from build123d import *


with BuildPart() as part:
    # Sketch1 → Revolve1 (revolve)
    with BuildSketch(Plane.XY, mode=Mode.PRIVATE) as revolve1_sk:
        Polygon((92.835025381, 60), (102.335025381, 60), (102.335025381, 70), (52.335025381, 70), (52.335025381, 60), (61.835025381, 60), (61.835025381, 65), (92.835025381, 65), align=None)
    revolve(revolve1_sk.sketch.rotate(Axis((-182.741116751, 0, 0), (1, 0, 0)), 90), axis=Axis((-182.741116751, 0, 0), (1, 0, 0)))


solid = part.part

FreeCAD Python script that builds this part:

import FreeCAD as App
import Part
import Sketcher
from FreeCAD import Vector
Q = App.Units.Quantity


def add_polygon(sketch, points):
    """Adds a closed chain of lines whose ends are joined by coincident constraints."""
    first, n = sketch.GeometryCount, len(points)
    for a, b in zip(points, points[1:] + points[:1]):
        sketch.addGeometry(Part.LineSegment(App.Vector(*a, 0), App.Vector(*b, 0)), False)
    for i in range(n):
        sketch.addConstraint(Sketcher.Constraint("Coincident", first + i, 2, first + (i + 1) % n, 1))

doc = App.newDocument("Part")
params = doc.addObject("Spreadsheet::Sheet", "Params")
for row, (alias, value) in enumerate([
    ("sketch1_width", "50 mm"),
    ("sketch1_width2", "31 mm"),
    ("sketch1_height", "10 mm"),
    ("sketch1_height2", "5 mm"),
    ("revolution_angle", "360 deg"),
], start=1):
    params.set(f"A{row}", alias)
    params.set(f"B{row}", "=" + value)
    params.setAlias(f"B{row}", alias)

body = doc.addObject("PartDesign::Body", "Body")

# Sketch on XY plane
sketch1 = doc.addObject("Sketcher::SketchObject", "Sketch")
body.addObject(sketch1)
sketch1.AttachmentSupport = (doc.XY_Plane, [""])
sketch1.MapMode = "FlatFace"
add_polygon(sketch1, [(93, 60), (102, 60), (102, 70), (52, 70), (52, 60), (62, 60), (62, 65), (93, 65)])  # lines 0-7
sketch1.addConstraint([
    Sketcher.Constraint("Horizontal", 0),
    Sketcher.Constraint("Vertical", 1),
    Sketcher.Constraint("Horizontal", 2),
    Sketcher.Constraint("Vertical", 3),
    Sketcher.Constraint("Horizontal", 4),
    Sketcher.Constraint("Vertical", 5),
    Sketcher.Constraint("Horizontal", 6),
    Sketcher.Constraint("Vertical", 7),
    Sketcher.Constraint("Horizontal", 0, 2, 3, 2),
    Sketcher.Constraint("Equal", 0, 4),
    Sketcher.Constraint("DistanceX", 2, 2, 2, 1, Q("50 mm")),
    Sketcher.Constraint("DistanceX", 6, 1, 6, 2, Q("31 mm")),
    Sketcher.Constraint("DistanceY", 1, 1, 1, 2, Q("10 mm")),
    Sketcher.Constraint("DistanceY", 5, 1, 5, 2, Q("5 mm")),
    Sketcher.Constraint("DistanceY", -1, 1, 0, 2, Q("60 mm")),
    Sketcher.Constraint("DistanceX", -1, 1, 0, 2, Q("102.335025 mm")),
])
sketch1.setExpression("Constraints[18]", "Params.sketch1_width")
sketch1.setExpression("Constraints[19]", "Params.sketch1_width2")
sketch1.setExpression("Constraints[20]", "Params.sketch1_height")
sketch1.setExpression("Constraints[21]", "Params.sketch1_height2")
revolution = doc.addObject("PartDesign::Revolution", "Revolution")
body.addObject(revolution)
revolution.Profile = sketch1
revolution.ReferenceAxis = (sketch1, ["H_Axis"])
revolution.setExpression("Angle", "Params.revolution_angle")

doc.recompute()
